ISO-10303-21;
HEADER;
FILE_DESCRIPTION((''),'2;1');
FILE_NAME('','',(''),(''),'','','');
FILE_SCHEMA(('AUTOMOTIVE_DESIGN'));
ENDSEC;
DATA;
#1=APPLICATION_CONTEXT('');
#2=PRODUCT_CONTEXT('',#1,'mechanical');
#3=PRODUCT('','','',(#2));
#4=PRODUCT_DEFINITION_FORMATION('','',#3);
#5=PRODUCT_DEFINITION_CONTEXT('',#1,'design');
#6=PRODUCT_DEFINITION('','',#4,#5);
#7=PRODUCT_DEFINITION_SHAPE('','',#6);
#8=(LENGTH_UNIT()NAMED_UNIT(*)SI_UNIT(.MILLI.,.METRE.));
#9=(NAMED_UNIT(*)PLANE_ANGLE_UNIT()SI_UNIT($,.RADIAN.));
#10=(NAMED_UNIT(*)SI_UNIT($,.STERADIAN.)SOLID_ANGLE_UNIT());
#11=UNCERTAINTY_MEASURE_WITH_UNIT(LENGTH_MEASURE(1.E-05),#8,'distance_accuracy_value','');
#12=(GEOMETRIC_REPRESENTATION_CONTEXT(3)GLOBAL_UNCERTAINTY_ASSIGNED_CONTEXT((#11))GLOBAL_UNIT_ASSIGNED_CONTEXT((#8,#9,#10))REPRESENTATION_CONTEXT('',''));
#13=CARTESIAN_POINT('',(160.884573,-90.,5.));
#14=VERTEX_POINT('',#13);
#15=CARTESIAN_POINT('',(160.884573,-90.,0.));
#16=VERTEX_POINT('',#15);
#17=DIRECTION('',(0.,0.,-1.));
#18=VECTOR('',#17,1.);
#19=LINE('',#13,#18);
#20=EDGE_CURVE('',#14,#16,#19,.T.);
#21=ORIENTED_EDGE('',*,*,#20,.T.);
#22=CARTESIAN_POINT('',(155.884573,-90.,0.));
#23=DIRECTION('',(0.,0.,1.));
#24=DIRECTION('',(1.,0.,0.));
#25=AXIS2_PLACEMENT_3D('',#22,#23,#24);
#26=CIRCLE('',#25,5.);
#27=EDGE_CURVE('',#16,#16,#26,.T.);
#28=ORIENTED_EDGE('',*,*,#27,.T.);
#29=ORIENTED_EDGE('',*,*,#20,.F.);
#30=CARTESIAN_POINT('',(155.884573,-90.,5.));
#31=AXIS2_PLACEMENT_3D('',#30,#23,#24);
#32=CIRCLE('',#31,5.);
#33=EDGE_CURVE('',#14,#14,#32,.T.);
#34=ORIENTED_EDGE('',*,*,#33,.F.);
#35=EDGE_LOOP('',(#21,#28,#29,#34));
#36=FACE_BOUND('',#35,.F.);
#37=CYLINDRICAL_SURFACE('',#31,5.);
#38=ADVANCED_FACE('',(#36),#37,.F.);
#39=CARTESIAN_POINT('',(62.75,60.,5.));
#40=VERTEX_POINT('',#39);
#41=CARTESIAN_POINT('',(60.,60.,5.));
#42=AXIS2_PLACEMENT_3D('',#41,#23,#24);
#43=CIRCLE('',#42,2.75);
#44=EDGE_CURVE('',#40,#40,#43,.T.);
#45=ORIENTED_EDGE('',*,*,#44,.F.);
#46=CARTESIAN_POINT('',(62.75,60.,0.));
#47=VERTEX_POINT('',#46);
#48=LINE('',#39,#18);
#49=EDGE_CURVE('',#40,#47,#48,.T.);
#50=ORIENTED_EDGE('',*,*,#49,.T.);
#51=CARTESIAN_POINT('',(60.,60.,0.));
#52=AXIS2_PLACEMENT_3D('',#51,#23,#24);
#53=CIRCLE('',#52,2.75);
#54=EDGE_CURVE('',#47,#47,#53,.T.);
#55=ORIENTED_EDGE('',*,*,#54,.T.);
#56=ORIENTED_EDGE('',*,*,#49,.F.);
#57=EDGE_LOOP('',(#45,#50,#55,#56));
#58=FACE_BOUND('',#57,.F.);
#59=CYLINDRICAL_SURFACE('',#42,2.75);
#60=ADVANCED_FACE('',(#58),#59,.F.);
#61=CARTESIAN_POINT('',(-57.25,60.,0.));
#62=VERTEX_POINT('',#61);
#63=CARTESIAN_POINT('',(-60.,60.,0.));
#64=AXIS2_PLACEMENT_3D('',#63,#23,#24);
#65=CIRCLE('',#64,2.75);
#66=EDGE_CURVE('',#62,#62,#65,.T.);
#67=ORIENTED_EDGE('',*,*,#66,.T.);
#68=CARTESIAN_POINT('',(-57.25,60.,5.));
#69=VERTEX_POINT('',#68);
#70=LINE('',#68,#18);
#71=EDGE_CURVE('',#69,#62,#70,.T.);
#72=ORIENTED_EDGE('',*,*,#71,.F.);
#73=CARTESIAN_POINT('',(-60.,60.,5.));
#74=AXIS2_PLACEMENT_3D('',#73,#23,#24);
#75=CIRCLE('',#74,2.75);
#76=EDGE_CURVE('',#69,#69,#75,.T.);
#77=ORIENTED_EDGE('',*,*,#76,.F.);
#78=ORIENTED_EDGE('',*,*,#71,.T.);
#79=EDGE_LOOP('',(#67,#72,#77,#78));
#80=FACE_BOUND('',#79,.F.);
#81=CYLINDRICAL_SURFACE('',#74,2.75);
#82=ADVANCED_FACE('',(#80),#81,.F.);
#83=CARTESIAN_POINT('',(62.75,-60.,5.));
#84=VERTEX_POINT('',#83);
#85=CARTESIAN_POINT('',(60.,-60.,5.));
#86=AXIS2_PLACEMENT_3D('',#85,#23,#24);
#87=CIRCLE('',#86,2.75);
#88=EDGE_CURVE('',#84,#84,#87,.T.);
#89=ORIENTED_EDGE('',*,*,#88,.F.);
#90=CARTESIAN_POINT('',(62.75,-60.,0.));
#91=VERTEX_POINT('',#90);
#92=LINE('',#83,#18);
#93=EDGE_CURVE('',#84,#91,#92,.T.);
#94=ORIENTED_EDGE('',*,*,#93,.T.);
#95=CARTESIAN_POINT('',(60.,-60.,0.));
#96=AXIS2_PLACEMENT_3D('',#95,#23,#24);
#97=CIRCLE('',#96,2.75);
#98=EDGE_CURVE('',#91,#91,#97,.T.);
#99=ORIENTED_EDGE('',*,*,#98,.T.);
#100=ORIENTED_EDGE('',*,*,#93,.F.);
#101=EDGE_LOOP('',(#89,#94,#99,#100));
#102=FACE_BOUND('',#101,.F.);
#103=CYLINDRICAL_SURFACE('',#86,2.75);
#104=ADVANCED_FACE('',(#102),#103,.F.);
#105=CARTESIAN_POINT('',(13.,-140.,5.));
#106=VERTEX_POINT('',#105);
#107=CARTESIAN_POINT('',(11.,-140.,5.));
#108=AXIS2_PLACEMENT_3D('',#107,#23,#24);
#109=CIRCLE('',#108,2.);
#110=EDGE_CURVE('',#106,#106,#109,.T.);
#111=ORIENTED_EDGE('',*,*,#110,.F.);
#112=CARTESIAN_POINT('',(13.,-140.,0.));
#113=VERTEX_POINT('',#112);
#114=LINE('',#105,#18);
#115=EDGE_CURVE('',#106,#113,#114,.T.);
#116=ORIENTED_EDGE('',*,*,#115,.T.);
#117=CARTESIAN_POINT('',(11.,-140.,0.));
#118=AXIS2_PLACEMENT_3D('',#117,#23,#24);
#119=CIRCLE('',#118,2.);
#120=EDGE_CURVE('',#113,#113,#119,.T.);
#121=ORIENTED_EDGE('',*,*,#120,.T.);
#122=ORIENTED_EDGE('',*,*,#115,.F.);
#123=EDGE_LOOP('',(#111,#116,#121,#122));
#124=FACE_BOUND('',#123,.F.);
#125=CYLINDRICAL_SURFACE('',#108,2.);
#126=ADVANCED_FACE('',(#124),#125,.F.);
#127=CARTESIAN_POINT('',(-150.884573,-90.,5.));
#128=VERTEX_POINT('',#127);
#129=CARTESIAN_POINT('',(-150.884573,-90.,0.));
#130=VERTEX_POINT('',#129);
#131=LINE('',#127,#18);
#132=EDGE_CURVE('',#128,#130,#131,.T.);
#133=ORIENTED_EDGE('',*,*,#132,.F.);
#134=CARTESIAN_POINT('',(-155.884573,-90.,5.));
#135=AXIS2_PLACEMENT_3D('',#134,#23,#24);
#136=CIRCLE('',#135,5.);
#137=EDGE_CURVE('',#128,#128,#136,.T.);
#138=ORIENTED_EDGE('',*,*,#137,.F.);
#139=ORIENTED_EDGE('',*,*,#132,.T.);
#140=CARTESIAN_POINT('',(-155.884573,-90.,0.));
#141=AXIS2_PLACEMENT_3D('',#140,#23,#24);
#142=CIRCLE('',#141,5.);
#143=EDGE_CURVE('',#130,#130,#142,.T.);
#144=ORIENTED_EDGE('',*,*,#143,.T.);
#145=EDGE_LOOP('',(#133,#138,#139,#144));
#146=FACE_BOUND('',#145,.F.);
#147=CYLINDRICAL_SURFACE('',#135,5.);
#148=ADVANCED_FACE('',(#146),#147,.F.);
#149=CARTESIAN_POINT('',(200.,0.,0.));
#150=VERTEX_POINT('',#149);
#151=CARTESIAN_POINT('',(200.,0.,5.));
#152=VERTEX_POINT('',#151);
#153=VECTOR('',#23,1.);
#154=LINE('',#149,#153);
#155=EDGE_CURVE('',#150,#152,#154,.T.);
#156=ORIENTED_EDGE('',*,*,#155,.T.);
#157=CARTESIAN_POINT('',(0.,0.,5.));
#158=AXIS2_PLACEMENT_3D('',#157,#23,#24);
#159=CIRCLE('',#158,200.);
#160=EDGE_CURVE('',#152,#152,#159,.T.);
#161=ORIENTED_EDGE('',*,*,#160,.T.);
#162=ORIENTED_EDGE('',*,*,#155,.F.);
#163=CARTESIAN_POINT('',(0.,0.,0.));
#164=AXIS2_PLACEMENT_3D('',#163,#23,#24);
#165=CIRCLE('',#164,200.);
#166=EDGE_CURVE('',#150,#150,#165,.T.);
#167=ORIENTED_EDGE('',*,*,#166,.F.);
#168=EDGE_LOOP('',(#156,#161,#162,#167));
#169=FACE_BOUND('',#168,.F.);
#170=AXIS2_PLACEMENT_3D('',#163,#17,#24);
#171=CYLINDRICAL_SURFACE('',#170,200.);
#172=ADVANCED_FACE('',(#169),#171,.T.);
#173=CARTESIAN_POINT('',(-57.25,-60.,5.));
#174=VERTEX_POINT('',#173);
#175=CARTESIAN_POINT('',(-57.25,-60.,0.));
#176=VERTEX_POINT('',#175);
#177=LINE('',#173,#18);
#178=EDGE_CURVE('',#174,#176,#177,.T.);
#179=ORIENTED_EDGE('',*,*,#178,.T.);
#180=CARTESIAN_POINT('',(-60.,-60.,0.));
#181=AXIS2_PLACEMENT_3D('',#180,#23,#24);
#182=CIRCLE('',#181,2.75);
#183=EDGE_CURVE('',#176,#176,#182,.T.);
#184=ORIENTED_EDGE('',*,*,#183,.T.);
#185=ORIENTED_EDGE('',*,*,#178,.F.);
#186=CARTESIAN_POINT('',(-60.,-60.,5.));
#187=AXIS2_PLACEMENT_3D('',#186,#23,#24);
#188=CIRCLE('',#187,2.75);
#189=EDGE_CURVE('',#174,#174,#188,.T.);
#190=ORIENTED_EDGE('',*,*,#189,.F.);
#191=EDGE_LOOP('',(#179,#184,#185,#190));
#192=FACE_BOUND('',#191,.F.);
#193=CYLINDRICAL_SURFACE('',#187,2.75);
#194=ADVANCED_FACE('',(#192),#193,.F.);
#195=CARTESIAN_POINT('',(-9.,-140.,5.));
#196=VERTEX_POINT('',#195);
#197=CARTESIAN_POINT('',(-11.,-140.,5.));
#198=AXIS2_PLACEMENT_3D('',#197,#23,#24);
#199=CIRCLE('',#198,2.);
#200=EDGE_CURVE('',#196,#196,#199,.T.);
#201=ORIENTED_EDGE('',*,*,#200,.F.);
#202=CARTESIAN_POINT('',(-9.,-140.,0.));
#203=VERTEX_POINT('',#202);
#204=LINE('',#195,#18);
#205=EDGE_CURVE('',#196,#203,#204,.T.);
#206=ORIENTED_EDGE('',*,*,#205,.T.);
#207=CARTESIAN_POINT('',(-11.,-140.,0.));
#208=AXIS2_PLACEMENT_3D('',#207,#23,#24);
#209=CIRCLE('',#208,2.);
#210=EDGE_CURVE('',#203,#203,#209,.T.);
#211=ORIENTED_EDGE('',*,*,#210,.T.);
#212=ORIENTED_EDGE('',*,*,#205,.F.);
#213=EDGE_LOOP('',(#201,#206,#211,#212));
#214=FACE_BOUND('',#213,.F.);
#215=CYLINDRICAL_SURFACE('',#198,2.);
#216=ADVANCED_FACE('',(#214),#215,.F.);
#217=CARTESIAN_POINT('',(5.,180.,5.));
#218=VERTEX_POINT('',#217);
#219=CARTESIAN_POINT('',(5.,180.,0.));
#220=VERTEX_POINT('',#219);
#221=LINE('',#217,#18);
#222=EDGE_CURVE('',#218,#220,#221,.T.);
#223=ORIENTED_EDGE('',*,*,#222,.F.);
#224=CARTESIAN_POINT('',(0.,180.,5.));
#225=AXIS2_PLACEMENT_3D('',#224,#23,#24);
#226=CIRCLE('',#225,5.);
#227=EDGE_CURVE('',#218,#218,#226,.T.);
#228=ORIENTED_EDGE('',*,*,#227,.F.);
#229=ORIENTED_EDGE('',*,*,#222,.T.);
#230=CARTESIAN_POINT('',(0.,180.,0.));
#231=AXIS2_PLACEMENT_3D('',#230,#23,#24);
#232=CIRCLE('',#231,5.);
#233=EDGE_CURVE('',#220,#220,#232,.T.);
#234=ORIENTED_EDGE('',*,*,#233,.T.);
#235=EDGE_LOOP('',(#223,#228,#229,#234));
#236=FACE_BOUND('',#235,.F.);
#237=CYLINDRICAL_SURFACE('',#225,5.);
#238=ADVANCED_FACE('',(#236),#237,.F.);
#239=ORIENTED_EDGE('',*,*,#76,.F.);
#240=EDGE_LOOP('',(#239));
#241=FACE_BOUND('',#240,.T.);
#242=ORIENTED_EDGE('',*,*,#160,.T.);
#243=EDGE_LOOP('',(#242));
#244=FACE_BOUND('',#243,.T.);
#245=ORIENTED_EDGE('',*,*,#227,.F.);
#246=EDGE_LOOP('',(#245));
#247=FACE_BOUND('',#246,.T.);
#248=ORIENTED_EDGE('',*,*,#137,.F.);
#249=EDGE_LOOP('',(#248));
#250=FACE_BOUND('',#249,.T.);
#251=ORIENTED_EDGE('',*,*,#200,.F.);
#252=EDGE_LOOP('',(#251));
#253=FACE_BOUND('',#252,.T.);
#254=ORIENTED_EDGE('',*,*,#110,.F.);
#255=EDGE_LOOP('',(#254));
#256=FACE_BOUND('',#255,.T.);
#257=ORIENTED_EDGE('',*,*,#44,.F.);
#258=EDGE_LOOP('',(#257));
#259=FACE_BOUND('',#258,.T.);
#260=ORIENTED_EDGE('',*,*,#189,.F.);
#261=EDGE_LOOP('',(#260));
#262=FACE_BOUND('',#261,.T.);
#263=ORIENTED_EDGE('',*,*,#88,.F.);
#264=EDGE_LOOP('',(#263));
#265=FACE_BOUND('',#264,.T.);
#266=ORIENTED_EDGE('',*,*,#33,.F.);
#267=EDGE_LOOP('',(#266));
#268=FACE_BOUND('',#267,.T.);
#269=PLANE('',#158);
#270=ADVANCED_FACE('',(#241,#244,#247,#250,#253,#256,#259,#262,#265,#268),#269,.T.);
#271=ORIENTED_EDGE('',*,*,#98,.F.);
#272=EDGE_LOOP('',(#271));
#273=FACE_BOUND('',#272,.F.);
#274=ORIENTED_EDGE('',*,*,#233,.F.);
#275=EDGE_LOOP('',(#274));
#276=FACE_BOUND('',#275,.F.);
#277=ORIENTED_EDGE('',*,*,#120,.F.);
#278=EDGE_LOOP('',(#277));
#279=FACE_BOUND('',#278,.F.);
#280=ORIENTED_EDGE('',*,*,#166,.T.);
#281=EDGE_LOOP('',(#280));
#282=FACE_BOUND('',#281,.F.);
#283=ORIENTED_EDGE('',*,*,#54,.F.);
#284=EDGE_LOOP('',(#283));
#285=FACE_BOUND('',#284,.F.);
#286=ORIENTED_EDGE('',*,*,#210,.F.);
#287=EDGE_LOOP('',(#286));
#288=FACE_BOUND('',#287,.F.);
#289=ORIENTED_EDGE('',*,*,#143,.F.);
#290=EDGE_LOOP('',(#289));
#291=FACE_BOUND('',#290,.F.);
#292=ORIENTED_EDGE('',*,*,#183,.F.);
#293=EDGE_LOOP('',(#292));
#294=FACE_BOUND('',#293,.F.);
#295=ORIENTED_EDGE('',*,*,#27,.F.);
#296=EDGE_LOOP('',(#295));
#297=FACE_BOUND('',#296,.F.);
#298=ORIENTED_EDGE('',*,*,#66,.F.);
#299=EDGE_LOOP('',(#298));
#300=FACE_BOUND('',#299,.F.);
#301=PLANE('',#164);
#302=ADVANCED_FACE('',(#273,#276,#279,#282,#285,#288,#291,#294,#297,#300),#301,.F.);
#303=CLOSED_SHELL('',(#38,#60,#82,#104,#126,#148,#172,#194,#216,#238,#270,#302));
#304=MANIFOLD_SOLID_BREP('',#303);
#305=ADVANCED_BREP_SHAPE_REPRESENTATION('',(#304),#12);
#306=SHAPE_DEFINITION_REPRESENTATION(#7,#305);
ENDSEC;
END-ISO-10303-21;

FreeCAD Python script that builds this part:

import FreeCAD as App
import Part
import Sketcher
from FreeCAD import Vector
Q = App.Units.Quantity

doc = App.newDocument("Part")
body = doc.addObject("PartDesign::Body", "Body")

# Sketch on XY plane
sketch1 = doc.addObject("Sketcher::SketchObject", "Sketch")
body.addObject(sketch1)
sketch1.AttachmentSupport = (doc.XY_Plane, [""])
sketch1.MapMode = "FlatFace"
sketch1.addGeometry(Part.Circle(Vector(0, 0, 0), Vector(0, 0, 1), 200), False)
sketch1.addConstraint([
    Sketcher.Constraint("Coincident", 0, 3, -1, 1),
    Sketcher.Constraint("Diameter", 0, Q("400 mm")),
])
pad1 = doc.addObject("PartDesign::Pad", "Pad")
body.addObject(pad1)
pad1.Profile = sketch1
pad1.Length = 5

# Sketch on XY plane
sketch2 = doc.addObject("Sketcher::SketchObject", "Sketch001")
body.addObject(sketch2)
sketch2.AttachmentSupport = (doc.XY_Plane, [""])
sketch2.MapMode = "FlatFace"
sketch2.AttachmentOffset = App.Placement(Vector(0, 0, 5), App.Rotation())
sketch2.addGeometry(Part.Circle(Vector(0, 180, 0), Vector(0, 0, 1), 5), False)
sketch2.addConstraint([
    Sketcher.Constraint("PointOnObject", 0, 3, -2),
    Sketcher.Constraint("Diameter", 0, Q("10 mm")),
    Sketcher.Constraint("DistanceY", -1, 1, 0, 3, Q("180 mm")),
])
pocket1 = doc.addObject("PartDesign::Pocket", "Pocket")
body.addObject(pocket1)
pocket1.Profile = sketch2
pocket1.Type = "UpToFirst"

# Sketch on XY plane
sketch3 = doc.addObject("Sketcher::SketchObject", "Sketch002")
body.addObject(sketch3)
sketch3.AttachmentSupport = (doc.XY_Plane, [""])
sketch3.MapMode = "FlatFace"
sketch3.AttachmentOffset = App.Placement(Vector(0, 0, 5), App.Rotation())
sketch3.addGeometry(Part.Circle(Vector(156, -90, 0), Vector(0, 0, 1), 5), False)
sketch3.addConstraint([
    Sketcher.Constraint("Diameter", 0, Q("10 mm")),
    Sketcher.Constraint("DistanceY", 0, 3, -1, 1, Q("90 mm")),
    Sketcher.Constraint("DistanceX", -1, 1, 0, 3, Q("155.884573 mm")),
])
pocket2 = doc.addObject("PartDesign::Pocket", "Pocket001")
body.addObject(pocket2)
pocket2.Profile = sketch3
pocket2.Type = "UpToFirst"

# Sketch on XY plane
sketch4 = doc.addObject("Sketcher::SketchObject", "Sketch003")
body.addObject(sketch4)
sketch4.AttachmentSupport = (doc.XY_Plane, [""])
sketch4.MapMode = "FlatFace"
sketch4.AttachmentOffset = App.Placement(Vector(0, 0, 5), App.Rotation())
sketch4.addGeometry(Part.Circle(Vector(-156, -90, 0), Vector(0, 0, 1), 5), False)
sketch4.addConstraint([
    Sketcher.Constraint("Diameter", 0, Q("10 mm")),
    Sketcher.Constraint("DistanceY", 0, 3, -1, 1, Q("90 mm")),
    Sketcher.Constraint("DistanceX", 0, 3, -1, 1, Q("155.884573 mm")),
])
pocket3 = doc.addObject("PartDesign::Pocket", "Pocket002")
body.addObject(pocket3)
pocket3.Profile = sketch4
pocket3.Type = "UpToFirst"

# Sketch on XY plane
sketch5 = doc.addObject("Sketcher::SketchObject", "Sketch004")
body.addObject(sketch5)
sketch5.AttachmentSupport = (doc.XY_Plane, [""])
sketch5.MapMode = "FlatFace"
sketch5.AttachmentOffset = App.Placement(Vector(0, 0, 5), App.Rotation())
sketch5.addGeometry(Part.Circle(Vector(-60, 60, 0), Vector(0, 0, 1), 2.8), False)
sketch5.addConstraint([
    Sketcher.Constraint("Diameter", 0, Q("5.5 mm")),
    Sketcher.Constraint("DistanceX", 0, 3, -1, 1, Q("60 mm")),
    Sketcher.Constraint("DistanceY", -1, 1, 0, 3, Q("60 mm")),
])
pocket4 = doc.addObject("PartDesign::Pocket", "Pocket003")
body.addObject(pocket4)
pocket4.Profile = sketch5
pocket4.Type = "UpToFirst"

# Sketch on XY plane
sketch6 = doc.addObject("Sketcher::SketchObject", "Sketch005")
body.addObject(sketch6)
sketch6.AttachmentSupport = (doc.XY_Plane, [""])
sketch6.MapMode = "FlatFace"
sketch6.AttachmentOffset = App.Placement(Vector(0, 0, 5), App.Rotation())
sketch6.addGeometry(Part.Circle(Vector(60, 60, 0), Vector(0, 0, 1), 2.8), False)
sketch6.addConstraint([
    Sketcher.Constraint("Diameter", 0, Q("5.5 mm")),
    Sketcher.Constraint("DistanceX", -1, 1, 0, 3, Q("60 mm")),
    Sketcher.Constraint("DistanceY", -1, 1, 0, 3, Q("60 mm")),
])
pocket5 = doc.addObject("PartDesign::Pocket", "Pocket004")
body.addObject(pocket5)
pocket5.Profile = sketch6
pocket5.Type = "UpToFirst"

# Sketch on XY plane
sketch7 = doc.addObject("Sketcher::SketchObject", "Sketch006")
body.addObject(sketch7)
sketch7.AttachmentSupport = (doc.XY_Plane, [""])
sketch7.MapMode = "FlatFace"
sketch7.AttachmentOffset = App.Placement(Vector(0, 0, 5), App.Rotation())
sketch7.addGeometry(Part.Circle(Vector(60, -60, 0), Vector(0, 0, 1), 2.8), False)
sketch7.addConstraint([
    Sketcher.Constraint("Diameter", 0, Q("5.5 mm")),
    Sketcher.Constraint("DistanceX", -1, 1, 0, 3, Q("60 mm")),
    Sketcher.Constraint("DistanceY", 0, 3, -1, 1, Q("60 mm")),
])
pocket6 = doc.addObject("PartDesign::Pocket", "Pocket005")
body.addObject(pocket6)
pocket6.Profile = sketch7
pocket6.Type = "UpToFirst"

# Sketch on XY plane
sketch8 = doc.addObject("Sketcher::SketchObject", "Sketch007")
body.addObject(sketch8)
sketch8.AttachmentSupport = (doc.XY_Plane, [""])
sketch8.MapMode = "FlatFace"
sketch8.AttachmentOffset = App.Placement(Vector(0, 0, 5), App.Rotation())
sketch8.addGeometry(Part.Circle(Vector(-60, -60, 0), Vector(0, 0, 1), 2.8), False)
sketch8.addConstraint([
    Sketcher.Constraint("Diameter", 0, Q("5.5 mm")),
    Sketcher.Constraint("DistanceX", 0, 3, -1, 1, Q("60 mm")),
    Sketcher.Constraint("DistanceY", 0, 3, -1, 1, Q("60 mm")),
])
pocket7 = doc.addObject("PartDesign::Pocket", "Pocket006")
body.addObject(pocket7)
pocket7.Profile = sketch8
pocket7.Type = "UpToFirst"

# Sketch on XY plane
sketch9 = doc.addObject("Sketcher::SketchObject", "Sketch008")
body.addObject(sketch9)
sketch9.AttachmentSupport = (doc.XY_Plane, [""])
sketch9.MapMode = "FlatFace"
sketch9.AttachmentOffset = App.Placement(Vector(0, 0, 5), App.Rotation())
sketch9.addGeometry(Part.Circle(Vector(11, -140, 0), Vector(0, 0, 1), 2), False)
sketch9.addConstraint([
    Sketcher.Constraint("Diameter", 0, Q("4 mm")),
    Sketcher.Constraint("DistanceX", -1, 1, 0, 3, Q("11 mm")),
    Sketcher.Constraint("DistanceY", 0, 3, -1, 1, Q("140 mm")),
])
pocket8 = doc.addObject("PartDesign::Pocket", "Pocket007")
body.addObject(pocket8)
pocket8.Profile = sketch9
pocket8.Type = "UpToFirst"

# Sketch on XY plane
sketch10 = doc.addObject("Sketcher::SketchObject", "Sketch009")
body.addObject(sketch10)
sketch10.AttachmentSupport = (doc.XY_Plane, [""])
sketch10.MapMode = "FlatFace"
sketch10.AttachmentOffset = App.Placement(Vector(0, 0, 5), App.Rotation())
sketch10.addGeometry(Part.Circle(Vector(-11, -140, 0), Vector(0, 0, 1), 2), False)
sketch10.addConstraint([
    Sketcher.Constraint("Diameter", 0, Q("4 mm")),
    Sketcher.Constraint("DistanceX", 0, 3, -1, 1, Q("11 mm")),
    Sketcher.Constraint("DistanceY", 0, 3, -1, 1, Q("140 mm")),
])
pocket9 = doc.addObject("PartDesign::Pocket", "Pocket008")
body.addObject(pocket9)
pocket9.Profile = sketch10
pocket9.Type = "UpToFirst"

doc.recompute()
